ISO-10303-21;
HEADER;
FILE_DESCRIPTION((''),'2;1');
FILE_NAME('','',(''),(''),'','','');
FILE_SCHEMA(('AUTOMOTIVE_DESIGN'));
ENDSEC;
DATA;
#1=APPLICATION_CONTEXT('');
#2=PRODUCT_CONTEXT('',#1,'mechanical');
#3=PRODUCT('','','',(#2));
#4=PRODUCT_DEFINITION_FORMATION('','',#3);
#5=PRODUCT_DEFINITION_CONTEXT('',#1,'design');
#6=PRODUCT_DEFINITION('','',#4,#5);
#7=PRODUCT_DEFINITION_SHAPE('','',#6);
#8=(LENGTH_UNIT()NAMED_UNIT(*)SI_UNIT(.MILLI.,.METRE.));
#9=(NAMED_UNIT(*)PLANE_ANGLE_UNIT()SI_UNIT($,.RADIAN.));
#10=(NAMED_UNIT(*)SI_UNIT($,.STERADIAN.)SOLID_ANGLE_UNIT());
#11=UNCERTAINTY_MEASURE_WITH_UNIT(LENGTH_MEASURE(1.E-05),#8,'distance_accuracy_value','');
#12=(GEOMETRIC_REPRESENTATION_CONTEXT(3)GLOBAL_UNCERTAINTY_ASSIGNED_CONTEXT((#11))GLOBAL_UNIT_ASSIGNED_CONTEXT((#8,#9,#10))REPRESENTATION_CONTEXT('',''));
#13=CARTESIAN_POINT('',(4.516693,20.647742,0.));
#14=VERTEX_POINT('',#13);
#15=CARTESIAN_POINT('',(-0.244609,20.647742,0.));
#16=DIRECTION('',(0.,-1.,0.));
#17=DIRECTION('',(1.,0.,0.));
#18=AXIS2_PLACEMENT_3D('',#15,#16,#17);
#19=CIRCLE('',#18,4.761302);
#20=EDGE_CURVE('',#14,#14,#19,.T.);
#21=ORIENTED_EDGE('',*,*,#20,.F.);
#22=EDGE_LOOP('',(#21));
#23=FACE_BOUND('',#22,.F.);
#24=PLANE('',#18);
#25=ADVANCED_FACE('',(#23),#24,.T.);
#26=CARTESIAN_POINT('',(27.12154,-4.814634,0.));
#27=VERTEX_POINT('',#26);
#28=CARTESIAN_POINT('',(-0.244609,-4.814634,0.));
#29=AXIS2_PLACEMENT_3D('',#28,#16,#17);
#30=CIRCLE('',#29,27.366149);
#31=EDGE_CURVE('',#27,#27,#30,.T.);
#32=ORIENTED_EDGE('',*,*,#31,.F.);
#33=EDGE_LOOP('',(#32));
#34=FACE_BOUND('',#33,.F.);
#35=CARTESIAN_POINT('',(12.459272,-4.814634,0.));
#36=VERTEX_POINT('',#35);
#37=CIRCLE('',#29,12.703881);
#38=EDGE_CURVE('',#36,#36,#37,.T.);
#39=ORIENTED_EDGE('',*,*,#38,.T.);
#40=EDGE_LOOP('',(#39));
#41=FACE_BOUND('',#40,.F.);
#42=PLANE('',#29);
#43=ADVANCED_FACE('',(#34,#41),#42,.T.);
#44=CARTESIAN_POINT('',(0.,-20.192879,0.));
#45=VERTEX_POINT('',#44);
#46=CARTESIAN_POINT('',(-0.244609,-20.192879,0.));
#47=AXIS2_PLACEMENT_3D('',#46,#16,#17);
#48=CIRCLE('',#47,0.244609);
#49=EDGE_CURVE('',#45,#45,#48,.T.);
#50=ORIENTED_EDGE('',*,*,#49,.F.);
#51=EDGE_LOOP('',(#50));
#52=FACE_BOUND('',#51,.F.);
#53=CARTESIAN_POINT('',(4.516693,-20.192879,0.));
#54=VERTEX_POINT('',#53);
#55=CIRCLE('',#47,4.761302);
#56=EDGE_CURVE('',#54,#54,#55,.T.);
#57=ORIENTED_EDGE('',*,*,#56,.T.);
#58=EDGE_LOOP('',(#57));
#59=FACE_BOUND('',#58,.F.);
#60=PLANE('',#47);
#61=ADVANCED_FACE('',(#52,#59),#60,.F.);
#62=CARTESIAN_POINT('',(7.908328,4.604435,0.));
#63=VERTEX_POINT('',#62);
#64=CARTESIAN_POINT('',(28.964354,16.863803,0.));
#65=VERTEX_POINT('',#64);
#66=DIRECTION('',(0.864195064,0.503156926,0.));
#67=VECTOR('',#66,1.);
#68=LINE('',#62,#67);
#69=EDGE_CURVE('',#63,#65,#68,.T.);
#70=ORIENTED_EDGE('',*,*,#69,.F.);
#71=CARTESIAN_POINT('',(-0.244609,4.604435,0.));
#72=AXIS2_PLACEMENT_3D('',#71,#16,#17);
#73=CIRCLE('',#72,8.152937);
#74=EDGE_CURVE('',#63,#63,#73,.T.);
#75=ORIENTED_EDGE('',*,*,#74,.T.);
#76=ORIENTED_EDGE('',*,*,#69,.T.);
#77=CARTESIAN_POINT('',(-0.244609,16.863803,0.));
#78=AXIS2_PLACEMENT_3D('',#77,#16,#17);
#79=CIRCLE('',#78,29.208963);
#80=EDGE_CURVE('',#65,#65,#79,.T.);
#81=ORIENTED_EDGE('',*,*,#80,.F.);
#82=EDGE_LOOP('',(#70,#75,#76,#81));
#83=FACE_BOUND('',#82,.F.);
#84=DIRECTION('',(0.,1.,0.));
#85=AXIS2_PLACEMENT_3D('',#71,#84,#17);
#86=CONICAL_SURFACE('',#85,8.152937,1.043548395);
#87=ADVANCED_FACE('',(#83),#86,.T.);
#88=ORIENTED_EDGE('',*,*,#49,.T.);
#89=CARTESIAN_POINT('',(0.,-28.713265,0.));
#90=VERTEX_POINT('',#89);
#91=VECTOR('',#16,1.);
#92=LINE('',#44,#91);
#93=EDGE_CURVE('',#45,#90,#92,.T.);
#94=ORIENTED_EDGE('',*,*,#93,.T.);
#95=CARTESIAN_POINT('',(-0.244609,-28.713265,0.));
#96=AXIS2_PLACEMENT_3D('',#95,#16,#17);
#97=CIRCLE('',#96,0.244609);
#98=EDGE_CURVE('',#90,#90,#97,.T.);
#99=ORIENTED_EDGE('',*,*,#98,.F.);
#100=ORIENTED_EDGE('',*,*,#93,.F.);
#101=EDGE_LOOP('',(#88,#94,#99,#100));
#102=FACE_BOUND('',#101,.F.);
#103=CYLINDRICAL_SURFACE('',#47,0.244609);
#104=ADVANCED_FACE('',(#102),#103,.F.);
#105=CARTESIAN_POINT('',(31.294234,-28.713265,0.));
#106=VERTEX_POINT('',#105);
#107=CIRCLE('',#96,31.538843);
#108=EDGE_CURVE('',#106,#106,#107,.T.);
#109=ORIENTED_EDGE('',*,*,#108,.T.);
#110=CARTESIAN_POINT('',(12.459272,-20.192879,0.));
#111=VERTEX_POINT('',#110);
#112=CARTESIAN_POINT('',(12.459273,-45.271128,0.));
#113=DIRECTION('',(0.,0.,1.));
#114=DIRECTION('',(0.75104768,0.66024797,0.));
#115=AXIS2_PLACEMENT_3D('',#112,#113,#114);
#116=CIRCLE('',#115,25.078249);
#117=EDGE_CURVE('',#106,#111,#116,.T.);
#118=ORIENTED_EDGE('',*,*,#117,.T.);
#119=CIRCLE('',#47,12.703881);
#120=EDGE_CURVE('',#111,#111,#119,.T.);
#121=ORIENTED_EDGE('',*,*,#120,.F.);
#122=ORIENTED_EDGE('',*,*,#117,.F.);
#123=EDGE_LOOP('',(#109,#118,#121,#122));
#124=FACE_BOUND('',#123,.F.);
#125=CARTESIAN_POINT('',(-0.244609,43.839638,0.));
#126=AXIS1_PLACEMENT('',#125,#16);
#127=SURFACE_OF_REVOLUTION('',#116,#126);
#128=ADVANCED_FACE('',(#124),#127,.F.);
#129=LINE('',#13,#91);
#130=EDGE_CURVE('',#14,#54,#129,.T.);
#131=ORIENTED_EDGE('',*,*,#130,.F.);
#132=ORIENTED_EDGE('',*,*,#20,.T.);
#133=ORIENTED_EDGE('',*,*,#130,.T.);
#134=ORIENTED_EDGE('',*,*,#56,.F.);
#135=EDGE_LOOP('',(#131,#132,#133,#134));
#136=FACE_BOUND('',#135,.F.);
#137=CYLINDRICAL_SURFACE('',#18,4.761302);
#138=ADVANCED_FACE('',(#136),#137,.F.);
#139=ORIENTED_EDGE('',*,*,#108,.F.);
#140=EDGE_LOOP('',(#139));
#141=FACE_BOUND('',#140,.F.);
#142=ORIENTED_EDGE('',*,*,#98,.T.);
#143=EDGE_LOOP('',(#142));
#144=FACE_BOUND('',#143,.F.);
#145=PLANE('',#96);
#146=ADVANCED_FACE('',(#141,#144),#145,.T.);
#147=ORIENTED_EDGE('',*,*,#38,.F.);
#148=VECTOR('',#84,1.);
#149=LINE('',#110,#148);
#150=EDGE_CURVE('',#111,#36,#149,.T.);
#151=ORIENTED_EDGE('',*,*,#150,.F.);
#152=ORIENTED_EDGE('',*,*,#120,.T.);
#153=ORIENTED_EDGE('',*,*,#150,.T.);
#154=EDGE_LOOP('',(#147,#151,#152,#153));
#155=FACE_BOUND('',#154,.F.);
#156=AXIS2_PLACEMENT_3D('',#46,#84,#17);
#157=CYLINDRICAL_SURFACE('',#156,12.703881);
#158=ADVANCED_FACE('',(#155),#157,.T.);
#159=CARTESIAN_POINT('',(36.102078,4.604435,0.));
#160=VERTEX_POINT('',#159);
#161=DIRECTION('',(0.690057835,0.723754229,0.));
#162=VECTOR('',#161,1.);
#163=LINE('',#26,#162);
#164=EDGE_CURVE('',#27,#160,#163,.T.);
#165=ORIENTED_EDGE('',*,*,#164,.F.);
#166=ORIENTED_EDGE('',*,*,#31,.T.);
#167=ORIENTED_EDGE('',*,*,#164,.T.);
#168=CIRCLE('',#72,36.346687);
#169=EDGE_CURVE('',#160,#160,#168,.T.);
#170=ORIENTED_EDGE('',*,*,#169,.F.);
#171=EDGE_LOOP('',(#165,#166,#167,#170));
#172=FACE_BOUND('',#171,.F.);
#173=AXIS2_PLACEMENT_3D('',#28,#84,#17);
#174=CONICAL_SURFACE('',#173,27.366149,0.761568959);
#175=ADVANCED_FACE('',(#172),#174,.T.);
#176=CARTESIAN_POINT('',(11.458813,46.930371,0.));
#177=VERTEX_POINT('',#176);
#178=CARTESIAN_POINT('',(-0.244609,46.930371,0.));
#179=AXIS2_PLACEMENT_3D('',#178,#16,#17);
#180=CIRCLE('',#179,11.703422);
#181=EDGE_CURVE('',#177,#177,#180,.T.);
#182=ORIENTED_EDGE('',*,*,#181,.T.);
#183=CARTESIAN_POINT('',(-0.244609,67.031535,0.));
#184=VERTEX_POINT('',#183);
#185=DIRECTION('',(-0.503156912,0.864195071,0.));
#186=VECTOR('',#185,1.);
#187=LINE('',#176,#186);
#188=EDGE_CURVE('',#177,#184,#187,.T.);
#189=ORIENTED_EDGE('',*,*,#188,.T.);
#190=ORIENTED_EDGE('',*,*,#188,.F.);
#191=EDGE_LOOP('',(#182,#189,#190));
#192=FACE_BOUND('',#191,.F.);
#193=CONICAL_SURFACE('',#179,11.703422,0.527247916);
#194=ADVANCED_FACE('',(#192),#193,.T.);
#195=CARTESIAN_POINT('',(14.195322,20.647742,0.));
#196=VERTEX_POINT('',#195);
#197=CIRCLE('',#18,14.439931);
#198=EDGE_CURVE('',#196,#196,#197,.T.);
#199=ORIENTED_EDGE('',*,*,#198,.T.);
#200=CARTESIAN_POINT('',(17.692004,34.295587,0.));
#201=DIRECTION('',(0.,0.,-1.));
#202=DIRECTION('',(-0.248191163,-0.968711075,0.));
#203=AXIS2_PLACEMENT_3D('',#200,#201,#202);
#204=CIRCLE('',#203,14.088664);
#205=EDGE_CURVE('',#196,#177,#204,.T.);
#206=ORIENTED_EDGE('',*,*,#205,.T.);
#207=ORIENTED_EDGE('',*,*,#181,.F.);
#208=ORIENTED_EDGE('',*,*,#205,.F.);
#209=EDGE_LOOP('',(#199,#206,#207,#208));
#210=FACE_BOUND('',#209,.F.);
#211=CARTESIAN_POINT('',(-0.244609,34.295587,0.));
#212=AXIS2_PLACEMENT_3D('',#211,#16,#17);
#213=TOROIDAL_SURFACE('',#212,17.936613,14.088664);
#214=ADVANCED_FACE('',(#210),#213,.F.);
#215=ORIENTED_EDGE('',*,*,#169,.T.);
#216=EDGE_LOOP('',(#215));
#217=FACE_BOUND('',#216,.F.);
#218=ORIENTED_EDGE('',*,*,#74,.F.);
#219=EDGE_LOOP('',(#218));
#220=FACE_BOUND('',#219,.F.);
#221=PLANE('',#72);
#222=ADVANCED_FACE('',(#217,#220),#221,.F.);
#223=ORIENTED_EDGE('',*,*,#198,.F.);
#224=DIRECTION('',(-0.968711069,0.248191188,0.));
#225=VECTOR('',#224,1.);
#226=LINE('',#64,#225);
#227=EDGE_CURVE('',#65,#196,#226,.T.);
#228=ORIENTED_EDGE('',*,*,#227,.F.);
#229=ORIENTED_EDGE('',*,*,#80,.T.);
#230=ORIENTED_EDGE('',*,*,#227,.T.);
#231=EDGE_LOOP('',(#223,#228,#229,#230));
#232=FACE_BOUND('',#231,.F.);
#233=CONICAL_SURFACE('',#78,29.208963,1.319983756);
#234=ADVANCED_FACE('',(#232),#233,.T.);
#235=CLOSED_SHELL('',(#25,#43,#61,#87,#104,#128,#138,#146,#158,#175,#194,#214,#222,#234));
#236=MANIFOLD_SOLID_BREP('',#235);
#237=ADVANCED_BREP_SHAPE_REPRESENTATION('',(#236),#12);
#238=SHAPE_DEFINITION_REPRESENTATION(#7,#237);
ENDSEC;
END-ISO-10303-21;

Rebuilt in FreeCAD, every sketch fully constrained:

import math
import FreeCAD as App
import Part
import Sketcher

V = App.Vector

doc = App.newDocument("Part")
body = doc.addObject("PartDesign::Body", "Body")

sketch1 = body.newObject("Sketcher::SketchObject", "Sketch")
sketch1.AttachmentSupport = (doc.getObject("XY_Plane"), [""])
sketch1.MapMode = "FlatFace"
sketch1.addGeometry(Part.LineSegment(V(11.5, 46.9, 0), V(-0.2, 67, 0)), False)
sketch1.addGeometry(Part.LineSegment(V(-0.2, 67, 0), V(-0.2, 20.6, 0)), False)
sketch1.addGeometry(Part.LineSegment(V(-0.2, 20.6, 0), V(4.5, 20.6, 0)), False)
sketch1.addGeometry(Part.LineSegment(V(4.5, 20.6, 0), V(4.5, -20.2, 0)), False)
sketch1.addGeometry(Part.LineSegment(V(4.5, -20.2, 0), V(0, -20.2, 0)), False)
sketch1.addGeometry(Part.LineSegment(V(0, -20.2, 0), V(0, -28.7, 0)), False)
sketch1.addGeometry(Part.LineSegment(V(0, -28.7, 0), V(31.3, -28.7, 0)), False)
sketch1.addGeometry(Part.ArcOfCircle(Part.Circle(V(12.5, -45.3, 0), V(0, 0, 1), 25.1), math.radians(41), math.radians(90)), False)
sketch1.addGeometry(Part.LineSegment(V(12.5, -20.2, 0), V(12.5, -4.8, 0)), False)
sketch1.addGeometry(Part.LineSegment(V(12.5, -4.8, 0), V(27.1, -4.8, 0)), False)
sketch1.addGeometry(Part.LineSegment(V(27.1, -4.8, 0), V(36.1, 4.6, 0)), False)
sketch1.addGeometry(Part.LineSegment(V(36.1, 4.6, 0), V(7.9, 4.6, 0)), False)
sketch1.addGeometry(Part.LineSegment(V(7.9, 4.6, 0), V(29, 16.9, 0)), False)
sketch1.addGeometry(Part.LineSegment(V(29, 16.9, 0), V(14.2, 20.6, 0)), False)
sketch1.addGeometry(Part.ArcOfCircle(Part.Circle(V(17.7, 34.3, 0), V(0, 0, 1), 14.1), math.radians(116), math.radians(256)), False)
sketch1.addGeometry(Part.LineSegment(V(-0.2, 67, 0), V(-0.2, -45.3, 0)), True)
sketch1.addConstraint(Sketcher.Constraint("Coincident", 0, 2, 1, 1))
sketch1.addConstraint(Sketcher.Constraint("Coincident", 1, 2, 2, 1))
sketch1.addConstraint(Sketcher.Constraint("Coincident", 2, 2, 3, 1))
sketch1.addConstraint(Sketcher.Constraint("Coincident", 3, 2, 4, 1))
sketch1.addConstraint(Sketcher.Constraint("Coincident", 4, 2, 5, 1))
sketch1.addConstraint(Sketcher.Constraint("Coincident", 5, 2, 6, 1))
sketch1.addConstraint(Sketcher.Constraint("Coincident", 6, 2, 7, 1))
sketch1.addConstraint(Sketcher.Constraint("Coincident", 7, 2, 8, 1))
sketch1.addConstraint(Sketcher.Constraint("Coincident", 8, 2, 9, 1))
sketch1.addConstraint(Sketcher.Constraint("Coincident", 9, 2, 10, 1))
sketch1.addConstraint(Sketcher.Constraint("Coincident", 10, 2, 11, 1))
sketch1.addConstraint(Sketcher.Constraint("Coincident", 11, 2, 12, 1))
sketch1.addConstraint(Sketcher.Constraint("Coincident", 12, 2, 13, 1))
sketch1.addConstraint(Sketcher.Constraint("Tangent", 13, 2, 14, 2))
sketch1.addConstraint(Sketcher.Constraint("Coincident", 14, 1, 0, 1))
sketch1.addConstraint(Sketcher.Constraint("Vertical", 1))
sketch1.addConstraint(Sketcher.Constraint("Horizontal", 2))
sketch1.addConstraint(Sketcher.Constraint("Vertical", 3))
sketch1.addConstraint(Sketcher.Constraint("Horizontal", 4))
sketch1.addConstraint(Sketcher.Constraint("Vertical", 5))
sketch1.addConstraint(Sketcher.Constraint("Horizontal", 6))
sketch1.addConstraint(Sketcher.Constraint("Vertical", 8))
sketch1.addConstraint(Sketcher.Constraint("Horizontal", 9))
sketch1.addConstraint(Sketcher.Constraint("Horizontal", 11))
sketch1.addConstraint(Sketcher.Constraint("Vertical", 15))
sketch1.addConstraint(Sketcher.Constraint("Coincident", 15, 1, 0, 2))
sketch1.addConstraint(Sketcher.Constraint("PointOnObject", 4, 2, -2))
sketch1.addConstraint(Sketcher.Constraint("Perpendicular", 0, 12))
sketch1.addConstraint(Sketcher.Constraint("Horizontal", 4, 2, 7, 2))
sketch1.addConstraint(Sketcher.Constraint("Horizontal", 2, 2, 13, 2))
sketch1.addConstraint(Sketcher.Constraint("Horizontal", 7, 3, 15, 2))
sketch1.addConstraint(Sketcher.Constraint("Radius", 7, 25.078249))
sketch1.addConstraint(Sketcher.Constraint("DistanceX", 2, 1, 2, 2, 4.761302))
sketch1.addConstraint(Sketcher.Constraint("Radius", 14, 14.088664))
sketch1.addConstraint(Sketcher.Constraint("Distance", 12, 24.3649))
sketch1.addConstraint(Sketcher.Constraint("DistanceX", 11, 2, 11, 1, 28.19375))
sketch1.addConstraint(Sketcher.Constraint("DistanceY", 3, 2, 3, 1, 40.840621))
sketch1.addConstraint(Sketcher.Constraint("DistanceY", 6, 2, 10, 2, 33.3177))
sketch1.addConstraint(Sketcher.Constraint("Distance", 10, 13.014182))
sketch1.addConstraint(Sketcher.Constraint("DistanceX", 4, 2, 4, 1, 4.516693))
sketch1.addConstraint(Sketcher.Constraint("DistanceX", 6, 1, 6, 2, 31.294234))
sketch1.addConstraint(Sketcher.Constraint("DistanceX", 9, 1, 9, 2, 14.662268))
sketch1.addConstraint(Sketcher.Constraint("DistanceY", 1, 2, 1, 1, 46.383793))
sketch1.addConstraint(Sketcher.Constraint("DistanceY", 5, 2, 5, 1, 8.520386))
sketch1.addConstraint(Sketcher.Constraint("DistanceY", 8, 1, 8, 2, 15.378245))
sketch1.addConstraint(Sketcher.Constraint("DistanceY", 3, 2, -1, 1, 20.192879))
sketch1.addConstraint(Sketcher.Constraint("DistanceX", -1, 1, 7, 2, 12.459272))
sketch1.addConstraint(Sketcher.Constraint("DistanceY", -1, 1, 14, 1, 46.930371))
sketch1.addConstraint(Sketcher.Constraint("DistanceX", 7, 3, 14, 3, 5.232731))
revolution = body.newObject("PartDesign::Revolution", "Revolution")
revolution.Profile = sketch1
revolution.ReferenceAxis = (sketch1, ["Axis0"])
revolution.Angle = 360

doc.recompute()
